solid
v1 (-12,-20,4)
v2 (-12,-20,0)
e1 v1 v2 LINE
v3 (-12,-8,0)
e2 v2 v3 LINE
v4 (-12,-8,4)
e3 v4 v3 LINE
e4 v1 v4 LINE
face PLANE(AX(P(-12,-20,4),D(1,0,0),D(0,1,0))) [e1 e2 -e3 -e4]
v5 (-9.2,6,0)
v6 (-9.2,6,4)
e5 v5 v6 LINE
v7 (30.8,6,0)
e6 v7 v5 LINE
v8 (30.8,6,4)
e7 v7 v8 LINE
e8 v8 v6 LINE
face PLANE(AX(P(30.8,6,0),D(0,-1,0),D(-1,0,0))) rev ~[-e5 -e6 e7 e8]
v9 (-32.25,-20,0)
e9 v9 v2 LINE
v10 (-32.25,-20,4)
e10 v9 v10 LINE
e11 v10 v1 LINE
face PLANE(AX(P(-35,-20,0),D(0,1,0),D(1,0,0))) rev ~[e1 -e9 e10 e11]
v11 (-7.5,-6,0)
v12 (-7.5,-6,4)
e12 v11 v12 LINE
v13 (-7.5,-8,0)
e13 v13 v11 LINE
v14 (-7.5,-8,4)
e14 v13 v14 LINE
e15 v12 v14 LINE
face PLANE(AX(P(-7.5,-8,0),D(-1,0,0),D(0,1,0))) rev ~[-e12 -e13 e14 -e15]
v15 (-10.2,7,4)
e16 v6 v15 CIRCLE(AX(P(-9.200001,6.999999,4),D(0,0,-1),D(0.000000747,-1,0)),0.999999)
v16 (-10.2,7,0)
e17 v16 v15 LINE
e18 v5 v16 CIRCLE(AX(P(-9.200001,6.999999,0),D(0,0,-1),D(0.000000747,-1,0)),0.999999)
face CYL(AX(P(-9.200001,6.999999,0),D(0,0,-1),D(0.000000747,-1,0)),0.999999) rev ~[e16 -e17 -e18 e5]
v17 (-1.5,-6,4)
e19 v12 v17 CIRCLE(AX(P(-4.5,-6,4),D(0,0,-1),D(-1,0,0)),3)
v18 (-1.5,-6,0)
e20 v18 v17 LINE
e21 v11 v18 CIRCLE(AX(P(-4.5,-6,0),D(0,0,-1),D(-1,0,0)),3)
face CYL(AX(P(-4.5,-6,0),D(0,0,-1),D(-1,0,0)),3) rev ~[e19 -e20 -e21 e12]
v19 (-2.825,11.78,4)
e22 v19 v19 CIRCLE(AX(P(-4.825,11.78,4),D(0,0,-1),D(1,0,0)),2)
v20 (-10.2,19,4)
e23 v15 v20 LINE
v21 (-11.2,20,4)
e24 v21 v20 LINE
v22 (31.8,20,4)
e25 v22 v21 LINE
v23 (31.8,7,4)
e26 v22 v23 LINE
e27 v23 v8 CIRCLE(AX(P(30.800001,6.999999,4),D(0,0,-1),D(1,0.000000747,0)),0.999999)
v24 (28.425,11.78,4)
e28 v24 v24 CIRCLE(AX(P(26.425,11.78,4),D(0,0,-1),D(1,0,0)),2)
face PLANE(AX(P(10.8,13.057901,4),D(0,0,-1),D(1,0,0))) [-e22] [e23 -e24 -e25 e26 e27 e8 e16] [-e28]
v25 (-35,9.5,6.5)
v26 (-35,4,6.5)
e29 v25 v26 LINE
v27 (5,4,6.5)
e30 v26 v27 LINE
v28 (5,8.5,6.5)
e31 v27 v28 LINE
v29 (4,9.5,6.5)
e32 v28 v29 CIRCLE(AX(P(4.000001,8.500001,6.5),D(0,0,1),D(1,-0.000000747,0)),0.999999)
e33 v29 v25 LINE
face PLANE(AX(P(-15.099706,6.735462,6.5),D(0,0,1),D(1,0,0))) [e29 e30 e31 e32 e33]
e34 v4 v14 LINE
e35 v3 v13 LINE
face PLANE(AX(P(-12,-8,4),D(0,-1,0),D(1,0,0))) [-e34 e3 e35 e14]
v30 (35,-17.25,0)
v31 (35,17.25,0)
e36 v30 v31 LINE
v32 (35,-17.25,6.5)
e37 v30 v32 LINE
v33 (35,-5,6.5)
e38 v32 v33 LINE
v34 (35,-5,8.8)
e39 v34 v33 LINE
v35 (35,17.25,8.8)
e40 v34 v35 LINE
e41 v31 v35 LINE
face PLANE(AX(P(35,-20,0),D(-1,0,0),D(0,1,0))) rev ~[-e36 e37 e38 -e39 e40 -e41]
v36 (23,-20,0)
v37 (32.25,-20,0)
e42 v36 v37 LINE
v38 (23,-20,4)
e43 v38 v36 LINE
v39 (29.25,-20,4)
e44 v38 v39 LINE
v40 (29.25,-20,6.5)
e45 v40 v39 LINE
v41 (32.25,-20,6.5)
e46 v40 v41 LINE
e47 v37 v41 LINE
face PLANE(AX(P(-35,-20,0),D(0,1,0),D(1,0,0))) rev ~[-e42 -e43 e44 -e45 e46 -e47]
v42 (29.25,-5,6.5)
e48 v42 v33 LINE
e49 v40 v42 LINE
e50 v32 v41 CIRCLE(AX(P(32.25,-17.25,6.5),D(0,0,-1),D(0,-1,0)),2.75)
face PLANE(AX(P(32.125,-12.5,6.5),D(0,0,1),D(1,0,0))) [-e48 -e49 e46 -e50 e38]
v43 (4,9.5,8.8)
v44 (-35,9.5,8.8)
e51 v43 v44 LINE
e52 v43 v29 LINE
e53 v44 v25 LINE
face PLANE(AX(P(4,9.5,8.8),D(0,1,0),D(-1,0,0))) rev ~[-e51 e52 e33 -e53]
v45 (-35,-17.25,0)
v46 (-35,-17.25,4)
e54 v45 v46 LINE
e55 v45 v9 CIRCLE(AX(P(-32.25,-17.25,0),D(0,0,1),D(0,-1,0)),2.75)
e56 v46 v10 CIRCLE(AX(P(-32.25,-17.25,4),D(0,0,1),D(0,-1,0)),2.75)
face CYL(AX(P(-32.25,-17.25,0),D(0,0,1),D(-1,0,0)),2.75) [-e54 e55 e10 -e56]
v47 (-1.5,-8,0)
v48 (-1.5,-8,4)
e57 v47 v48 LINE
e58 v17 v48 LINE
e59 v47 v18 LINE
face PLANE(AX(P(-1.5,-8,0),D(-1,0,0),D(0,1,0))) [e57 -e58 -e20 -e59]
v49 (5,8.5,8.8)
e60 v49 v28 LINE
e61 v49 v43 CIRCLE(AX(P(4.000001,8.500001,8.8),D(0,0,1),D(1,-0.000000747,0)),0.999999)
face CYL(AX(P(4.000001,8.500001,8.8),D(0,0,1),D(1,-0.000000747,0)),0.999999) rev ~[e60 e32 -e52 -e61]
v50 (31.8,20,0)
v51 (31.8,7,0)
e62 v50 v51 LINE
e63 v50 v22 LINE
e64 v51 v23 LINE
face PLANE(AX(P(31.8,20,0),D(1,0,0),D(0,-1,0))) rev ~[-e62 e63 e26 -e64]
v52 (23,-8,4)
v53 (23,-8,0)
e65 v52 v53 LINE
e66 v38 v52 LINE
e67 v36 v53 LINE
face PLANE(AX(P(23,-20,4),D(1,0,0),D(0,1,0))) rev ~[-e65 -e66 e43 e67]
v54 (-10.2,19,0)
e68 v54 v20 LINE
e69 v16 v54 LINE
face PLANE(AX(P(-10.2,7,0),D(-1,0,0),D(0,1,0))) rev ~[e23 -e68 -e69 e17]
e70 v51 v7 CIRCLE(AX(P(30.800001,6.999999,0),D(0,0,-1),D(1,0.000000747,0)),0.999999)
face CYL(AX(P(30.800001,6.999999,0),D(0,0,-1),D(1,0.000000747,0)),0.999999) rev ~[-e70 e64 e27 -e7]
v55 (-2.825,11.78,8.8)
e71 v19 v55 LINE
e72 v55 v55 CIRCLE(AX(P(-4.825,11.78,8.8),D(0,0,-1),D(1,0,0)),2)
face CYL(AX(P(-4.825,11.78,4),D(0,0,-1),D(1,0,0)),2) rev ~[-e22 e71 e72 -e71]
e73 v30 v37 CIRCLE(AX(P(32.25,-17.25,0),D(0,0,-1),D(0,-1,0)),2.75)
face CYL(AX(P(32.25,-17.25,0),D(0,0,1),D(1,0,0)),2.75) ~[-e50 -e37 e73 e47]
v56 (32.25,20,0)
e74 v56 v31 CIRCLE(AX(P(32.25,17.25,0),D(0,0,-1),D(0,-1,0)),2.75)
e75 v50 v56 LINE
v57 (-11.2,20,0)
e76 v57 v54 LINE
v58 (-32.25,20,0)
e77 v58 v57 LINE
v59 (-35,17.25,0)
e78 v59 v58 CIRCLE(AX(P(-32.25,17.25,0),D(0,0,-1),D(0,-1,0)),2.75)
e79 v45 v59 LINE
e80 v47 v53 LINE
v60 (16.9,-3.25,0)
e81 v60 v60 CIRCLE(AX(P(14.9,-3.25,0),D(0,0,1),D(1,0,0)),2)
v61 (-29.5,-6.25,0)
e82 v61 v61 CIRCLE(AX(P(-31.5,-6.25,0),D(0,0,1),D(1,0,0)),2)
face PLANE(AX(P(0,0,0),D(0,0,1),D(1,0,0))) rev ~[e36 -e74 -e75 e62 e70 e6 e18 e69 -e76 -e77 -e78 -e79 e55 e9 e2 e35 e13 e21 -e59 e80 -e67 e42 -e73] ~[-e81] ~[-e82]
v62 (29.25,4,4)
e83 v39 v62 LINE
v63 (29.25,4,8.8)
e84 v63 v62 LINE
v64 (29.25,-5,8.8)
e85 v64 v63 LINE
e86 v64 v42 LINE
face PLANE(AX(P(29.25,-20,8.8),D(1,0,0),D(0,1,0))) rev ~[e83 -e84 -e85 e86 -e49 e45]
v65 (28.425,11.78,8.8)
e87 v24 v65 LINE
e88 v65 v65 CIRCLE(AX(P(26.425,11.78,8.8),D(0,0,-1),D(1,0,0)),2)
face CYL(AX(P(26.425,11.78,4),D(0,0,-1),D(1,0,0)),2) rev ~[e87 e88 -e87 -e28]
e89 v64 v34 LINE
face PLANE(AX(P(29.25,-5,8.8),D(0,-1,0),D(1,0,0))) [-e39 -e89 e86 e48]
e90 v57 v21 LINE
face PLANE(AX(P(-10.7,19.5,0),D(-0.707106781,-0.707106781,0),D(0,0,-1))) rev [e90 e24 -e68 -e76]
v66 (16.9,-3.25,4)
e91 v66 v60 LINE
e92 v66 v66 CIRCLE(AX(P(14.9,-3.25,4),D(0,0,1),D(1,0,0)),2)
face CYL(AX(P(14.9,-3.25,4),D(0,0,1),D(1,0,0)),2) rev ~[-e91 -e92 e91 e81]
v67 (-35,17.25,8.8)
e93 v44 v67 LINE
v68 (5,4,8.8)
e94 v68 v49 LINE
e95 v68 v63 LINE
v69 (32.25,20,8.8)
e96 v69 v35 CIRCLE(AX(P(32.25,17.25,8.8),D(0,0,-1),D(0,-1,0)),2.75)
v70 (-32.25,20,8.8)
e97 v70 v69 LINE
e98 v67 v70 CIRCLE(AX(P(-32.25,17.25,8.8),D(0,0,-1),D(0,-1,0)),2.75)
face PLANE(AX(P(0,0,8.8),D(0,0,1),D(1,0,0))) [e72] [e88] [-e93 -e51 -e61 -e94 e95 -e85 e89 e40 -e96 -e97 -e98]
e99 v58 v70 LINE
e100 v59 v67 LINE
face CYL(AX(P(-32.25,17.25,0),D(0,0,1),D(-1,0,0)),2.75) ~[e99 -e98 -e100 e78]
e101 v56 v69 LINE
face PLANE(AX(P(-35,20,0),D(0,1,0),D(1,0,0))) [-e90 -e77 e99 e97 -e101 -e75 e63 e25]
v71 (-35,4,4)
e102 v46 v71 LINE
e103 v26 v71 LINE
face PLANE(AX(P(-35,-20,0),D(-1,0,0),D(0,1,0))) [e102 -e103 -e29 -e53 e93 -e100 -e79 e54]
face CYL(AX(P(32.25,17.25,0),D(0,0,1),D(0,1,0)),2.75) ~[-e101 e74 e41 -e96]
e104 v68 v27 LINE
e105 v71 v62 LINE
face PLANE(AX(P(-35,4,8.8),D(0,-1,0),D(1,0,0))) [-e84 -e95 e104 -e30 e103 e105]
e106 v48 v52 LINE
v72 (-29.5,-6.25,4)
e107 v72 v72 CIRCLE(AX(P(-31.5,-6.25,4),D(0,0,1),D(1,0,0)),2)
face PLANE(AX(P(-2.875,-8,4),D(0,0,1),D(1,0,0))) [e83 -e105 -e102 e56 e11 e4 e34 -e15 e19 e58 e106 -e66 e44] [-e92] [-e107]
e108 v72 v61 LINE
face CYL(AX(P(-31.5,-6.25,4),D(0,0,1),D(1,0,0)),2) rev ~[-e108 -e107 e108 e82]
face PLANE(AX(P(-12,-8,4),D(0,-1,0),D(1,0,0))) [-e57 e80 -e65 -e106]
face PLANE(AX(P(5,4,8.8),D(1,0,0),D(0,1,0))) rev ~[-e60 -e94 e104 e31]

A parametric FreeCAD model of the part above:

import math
import FreeCAD as App
import Part
import Sketcher

V = App.Vector


def edges_at(feature, points):
    """Names of the edges that pass closest to the given points."""
    edges = feature.Shape.Edges
    near = lambda p: min(range(len(edges)), key=lambda i: edges[i].distToShape(Part.Vertex(*p))[0])
    return sorted({f"Edge{near(p) + 1}" for p in points})

doc = App.newDocument("Part")
body = doc.addObject("PartDesign::Body", "Body")

sketch1 = doc.addObject("Sketcher::SketchObject", "Sketch")
body.addObject(sketch1)
sketch1.AttachmentSupport = (doc.XZ_Plane, [""])
sketch1.MapMode = "FlatFace"
sketch1.addGeometry(Part.LineSegment(V(-35, 20, 0), V(-35, -20, 0)), False)
sketch1.addGeometry(Part.LineSegment(V(-35, -20, 0), V(35, -20, 0)), False)
sketch1.addGeometry(Part.LineSegment(V(35, -20, 0), V(35, 20, 0)), False)
sketch1.addGeometry(Part.LineSegment(V(35, 20, 0), V(-35, 20, 0)), False)
sketch1.addConstraint(Sketcher.Constraint("Coincident", 0, 2, 1, 1))
sketch1.addConstraint(Sketcher.Constraint("Coincident", 1, 2, 2, 1))
sketch1.addConstraint(Sketcher.Constraint("Coincident", 2, 2, 3, 1))
sketch1.addConstraint(Sketcher.Constraint("Coincident", 3, 2, 0, 1))
sketch1.addConstraint(Sketcher.Constraint("Vertical", 0))
sketch1.addConstraint(Sketcher.Constraint("Horizontal", 1))
sketch1.addConstraint(Sketcher.Constraint("Vertical", 2))
sketch1.addConstraint(Sketcher.Constraint("Horizontal", 3))
sketch1.addConstraint(Sketcher.Constraint("Symmetric", 0, 2, 2, 2, -1, 1))
sketch1.addConstraint(Sketcher.Constraint("DistanceX", 1, 1, 1, 2, 70.0))
sketch1.addConstraint(Sketcher.Constraint("DistanceY", 0, 2, 0, 1, 40.0))
pad1 = doc.addObject("PartDesign::Pad", "Pad")
body.addObject(pad1)
pad1.Profile = sketch1
pad1.Length = 8.8

sketch2 = doc.addObject("Sketcher::SketchObject", "Sketch001")
body.addObject(sketch2)
sketch2.AttachmentSupport = (doc.XZ_Plane, [""])
sketch2.MapMode = "FlatFace"
sketch2.addGeometry(Part.LineSegment(V(31.8, 20, 0), V(31.8, 7, 0)), False)
sketch2.addGeometry(Part.ArcOfCircle(Part.Circle(V(30.800001, 6.999999, 0), V(0, 0, 1), 0.999999), math.radians(-90.000043), math.radians(0.000043)), False)
sketch2.addGeometry(Part.LineSegment(V(30.8, 6, 0), V(-9.2, 6, 0)), False)
sketch2.addGeometry(Part.ArcOfCircle(Part.Circle(V(-9.200001, 6.999999, 0), V(0, 0, 1), 0.999999), math.radians(179.999957), math.radians(270.000043)), False)
sketch2.addGeometry(Part.LineSegment(V(-10.2, 7, 0), V(-10.2, 20, 0)), False)
sketch2.addGeometry(Part.LineSegment(V(-10.2, 20, 0), V(31.8, 20, 0)), False)
sketch2.addConstraint(Sketcher.Constraint("Tangent", 0, 2, 1, 2))
sketch2.addConstraint(Sketcher.Constraint("Tangent", 1, 1, 2, 1))
sketch2.addConstraint(Sketcher.Constraint("Tangent", 2, 2, 3, 2))
sketch2.addConstraint(Sketcher.Constraint("Tangent", 3, 1, 4, 1))
sketch2.addConstraint(Sketcher.Constraint("Coincident", 4, 2, 5, 1))
sketch2.addConstraint(Sketcher.Constraint("Coincident", 5, 2, 0, 1))
sketch2.addConstraint(Sketcher.Constraint("Vertical", 0))
sketch2.addConstraint(Sketcher.Constraint("Horizontal", 2))
sketch2.addConstraint(Sketcher.Constraint("Vertical", 4))
sketch2.addConstraint(Sketcher.Constraint("Horizontal", 5))
sketch2.addConstraint(Sketcher.Constraint("Equal", 1, 3))
sketch2.addConstraint(Sketcher.Constraint("Radius", 1, 0.999999))
sketch2.addConstraint(Sketcher.Constraint("DistanceX", 2, 2, 2, 1, 40.0))
sketch2.addConstraint(Sketcher.Constraint("DistanceY", 0, 2, 0, 1, 13.0))
sketch2.addConstraint(Sketcher.Constraint("DistanceY", -1, 1, 1, 3, 6.999999))
sketch2.addConstraint(Sketcher.Constraint("DistanceX", -1, 1, 1, 3, 30.800001))
pocket1 = doc.addObject("PartDesign::Pocket", "Pocket")
body.addObject(pocket1)
pocket1.Profile = sketch2
pocket1.Length = 4
pocket1.Reversed = True

sketch3 = doc.addObject("Sketcher::SketchObject", "Sketch002")
body.addObject(sketch3)
sketch3.AttachmentSupport = (doc.XZ_Plane, [""])
sketch3.MapMode = "FlatFace"
sketch3.AttachmentOffset = App.Placement(V(0, 0, 4), App.Rotation())
sketch3.addGeometry(Part.Circle(V(-4.825, 11.78, 0), V(0, 0, 1), 2), False)
sketch3.addGeometry(Part.Circle(V(26.425, 11.78, 0), V(0, 0, 1), 2), False)
sketch3.addConstraint(Sketcher.Constraint("Equal", 0, 1))
sketch3.addConstraint(Sketcher.Constraint("Horizontal", 0, 3, 1, 3))
sketch3.addConstraint(Sketcher.Constraint("Diameter", 0, 4.0))
sketch3.addConstraint(Sketcher.Constraint("DistanceY", -1, 1, 0, 3, 11.78))
sketch3.addConstraint(Sketcher.Constraint("DistanceX", 0, 3, 1, 3, 31.25))
sketch3.addConstraint(Sketcher.Constraint("DistanceX", 0, 3, -1, 1, 4.825))
pocket2 = doc.addObject("PartDesign::Pocket", "Pocket001")
body.addObject(pocket2)
pocket2.Profile = sketch3
pocket2.Type = "ThroughAll"
pocket2.Reversed = True

sketch4 = doc.addObject("Sketcher::SketchObject", "Sketch003")
body.addObject(sketch4)
sketch4.AttachmentSupport = (doc.XZ_Plane, [""])
sketch4.MapMode = "FlatFace"
sketch4.AttachmentOffset = App.Placement(V(0, 0, 8.8), App.Rotation())
sketch4.addGeometry(Part.LineSegment(V(-35, 4, 0), V(-35, -20, 0)), False)
sketch4.addGeometry(Part.LineSegment(V(-35, -20, 0), V(29.25, -20, 0)), False)
sketch4.addGeometry(Part.LineSegment(V(29.25, -20, 0), V(29.25, 4, 0)), False)
sketch4.addGeometry(Part.LineSegment(V(29.25, 4, 0), V(-35, 4, 0)), False)
sketch4.addConstraint(Sketcher.Constraint("Coincident", 0, 2, 1, 1))
sketch4.addConstraint(Sketcher.Constraint("Coincident", 1, 2, 2, 1))
sketch4.addConstraint(Sketcher.Constraint("Coincident", 2, 2, 3, 1))
sketch4.addConstraint(Sketcher.Constraint("Coincident", 3, 2, 0, 1))
sketch4.addConstraint(Sketcher.Constraint("Vertical", 0))
sketch4.addConstraint(Sketcher.Constraint("Horizontal", 1))
sketch4.addConstraint(Sketcher.Constraint("Vertical", 2))
sketch4.addConstraint(Sketcher.Constraint("Horizontal", 3))
sketch4.addConstraint(Sketcher.Constraint("DistanceY", 0, 2, 0, 1, 24.0))
sketch4.addConstraint(Sketcher.Constraint("DistanceX", 0, 2, -1, 1, 35.0))
sketch4.addConstraint(Sketcher.Constraint("DistanceY", 0, 2, -1, 1, 20.0))
sketch4.addConstraint(Sketcher.Constraint("DistanceX", 1, 1, 1, 2, 64.25))
pocket3 = doc.addObject("PartDesign::Pocket", "Pocket002")
body.addObject(pocket3)
pocket3.Profile = sketch4
pocket3.Length = 4.8

sketch5 = doc.addObject("Sketcher::SketchObject", "Sketch004")
body.addObject(sketch5)
sketch5.AttachmentSupport = (doc.XZ_Plane, [""])
sketch5.MapMode = "FlatFace"
sketch5.AttachmentOffset = App.Placement(V(0, 0, 4), App.Rotation())
sketch5.addGeometry(Part.Circle(V(14.9, -3.25, 0), V(0, 0, 1), 2), False)
sketch5.addGeometry(Part.Circle(V(-31.5, -6.25, 0), V(0, 0, 1), 2), False)
sketch5.addConstraint(Sketcher.Constraint("Equal", 0, 1))
sketch5.addConstraint(Sketcher.Constraint("Diameter", 0, 4.0))
sketch5.addConstraint(Sketcher.Constraint("DistanceY", 1, 3, 0, 3, 3.0))
sketch5.addConstraint(Sketcher.Constraint("DistanceX", -1, 1, 0, 3, 14.9))
sketch5.addConstraint(Sketcher.Constraint("DistanceX", 1, 3, -1, 1, 31.5))
sketch5.addConstraint(Sketcher.Constraint("DistanceY", 0, 3, -1, 1, 3.25))
pocket4 = doc.addObject("PartDesign::Pocket", "Pocket003")
body.addObject(pocket4)
pocket4.Profile = sketch5
pocket4.Length = 4

sketch6 = doc.addObject("Sketcher::SketchObject", "Sketch005")
body.addObject(sketch6)
sketch6.AttachmentSupport = (doc.XZ_Plane, [""])
sketch6.MapMode = "FlatFace"
sketch6.AttachmentOffset = App.Placement(V(0, 0, 4), App.Rotation())
sketch6.addGeometry(Part.LineSegment(V(-12, -8, 0), V(-12, -20, 0)), False)
sketch6.addGeometry(Part.LineSegment(V(-12, -20, 0), V(23, -20, 0)), False)
sketch6.addGeometry(Part.LineSegment(V(23, -20, 0), V(23, -8, 0)), False)
sketch6.addGeometry(Part.LineSegment(V(23, -8, 0), V(-12, -8, 0)), False)
sketch6.addConstraint(Sketcher.Constraint("Coincident", 0, 2, 1, 1))
sketch6.addConstraint(Sketcher.Constraint("Coincident", 1, 2, 2, 1))
sketch6.addConstraint(Sketcher.Constraint("Coincident", 2, 2, 3, 1))
sketch6.addConstraint(Sketcher.Constraint("Coincident", 3, 2, 0, 1))
sketch6.addConstraint(Sketcher.Constraint("Vertical", 0))
sketch6.addConstraint(Sketcher.Constraint("Horizontal", 1))
sketch6.addConstraint(Sketcher.Constraint("Vertical", 2))
sketch6.addConstraint(Sketcher.Constraint("Horizontal", 3))
sketch6.addConstraint(Sketcher.Constraint("DistanceX", 1, 1, 1, 2, 35.0))
sketch6.addConstraint(Sketcher.Constraint("DistanceY", 0, 2, 0, 1, 12.0))
sketch6.addConstraint(Sketcher.Constraint("DistanceX", 0, 2, -1, 1, 12.0))
sketch6.addConstraint(Sketcher.Constraint("DistanceY", 0, 2, -1, 1, 20.0))
pocket5 = doc.addObject("PartDesign::Pocket", "Pocket004")
body.addObject(pocket5)
pocket5.Profile = sketch6
pocket5.Length = 4

sketch7 = doc.addObject("Sketcher::SketchObject", "Sketch006")
body.addObject(sketch7)
sketch7.AttachmentSupport = (doc.XZ_Plane, [""])
sketch7.MapMode = "FlatFace"
sketch7.addGeometry(Part.ArcOfCircle(Part.Circle(V(-4.5, -6, 0), V(0, 0, 1), 3), math.radians(0), math.radians(180)), False)
sketch7.addGeometry(Part.LineSegment(V(-1.5, -6, 0), V(-1.5, -8, 0)), False)
sketch7.addGeometry(Part.LineSegment(V(-1.5, -8, 0), V(-7.5, -8, 0)), False)
sketch7.addGeometry(Part.LineSegment(V(-7.5, -8, 0), V(-7.5, -6, 0)), False)
sketch7.addConstraint(Sketcher.Constraint("Tangent", 0, 1, 1, 1))
sketch7.addConstraint(Sketcher.Constraint("Coincident", 1, 2, 2, 1))
sketch7.addConstraint(Sketcher.Constraint("Coincident", 2, 2, 3, 1))
sketch7.addConstraint(Sketcher.Constraint("Tangent", 3, 2, 0, 2))
sketch7.addConstraint(Sketcher.Constraint("Vertical", 1))
sketch7.addConstraint(Sketcher.Constraint("Horizontal", 2))
sketch7.addConstraint(Sketcher.Constraint("Vertical", 3))
sketch7.addConstraint(Sketcher.Constraint("Radius", 0, 3.0))
sketch7.addConstraint(Sketcher.Constraint("DistanceY", 1, 2, 1, 1, 2.0))
sketch7.addConstraint(Sketcher.Constraint("DistanceY", 0, 3, -1, 1, 6.0))
sketch7.addConstraint(Sketcher.Constraint("DistanceX", 0, 3, -1, 1, 4.5))
pocket6 = doc.addObject("PartDesign::Pocket", "Pocket005")
body.addObject(pocket6)
pocket6.Profile = sketch7
pocket6.Type = "ThroughAll"
pocket6.Reversed = True

sketch8 = doc.addObject("Sketcher::SketchObject", "Sketch007")
body.addObject(sketch8)
sketch8.AttachmentSupport = (doc.XZ_Plane, [""])
sketch8.MapMode = "FlatFace"
sketch8.AttachmentOffset = App.Placement(V(0, 0, 8.8), App.Rotation())
sketch8.addGeometry(Part.LineSegment(V(-35, 4, 0), V(5, 4, 0)), False)
sketch8.addGeometry(Part.LineSegment(V(5, 4, 0), V(5, 8.5, 0)), False)
sketch8.addGeometry(Part.ArcOfCircle(Part.Circle(V(4.000001, 8.500001, 0), V(0, 0, 1), 0.999999), math.radians(-0.000043), math.radians(90.000043)), False)
sketch8.addGeometry(Part.LineSegment(V(4, 9.5, 0), V(-35, 9.5, 0)), False)
sketch8.addGeometry(Part.LineSegment(V(-35, 9.5, 0), V(-35, 4, 0)), False)
sketch8.addGeometry(Part.LineSegment(V(29.25, -5, 0), V(29.25, -20, 0)), False)
sketch8.addGeometry(Part.LineSegment(V(29.25, -20, 0), V(35, -20, 0)), False)
sketch8.addGeometry(Part.LineSegment(V(35, -20, 0), V(35, -5, 0)), False)
sketch8.addGeometry(Part.LineSegment(V(35, -5, 0), V(29.25, -5, 0)), False)
sketch8.addConstraint(Sketcher.Constraint("Coincident", 0, 2, 1, 1))
sketch8.addConstraint(Sketcher.Constraint("Tangent", 1, 2, 2, 1))
sketch8.addConstraint(Sketcher.Constraint("Tangent", 2, 2, 3, 1))
sketch8.addConstraint(Sketcher.Constraint("Coincident", 3, 2, 4, 1))
sketch8.addConstraint(Sketcher.Constraint("Coincident", 4, 2, 0, 1))
sketch8.addConstraint(Sketcher.Constraint("Coincident", 5, 2, 6, 1))
sketch8.addConstraint(Sketcher.Constraint("Coincident", 6, 2, 7, 1))
sketch8.addConstraint(Sketcher.Constraint("Coincident", 7, 2, 8, 1))
sketch8.addConstraint(Sketcher.Constraint("Coincident", 8, 2, 5, 1))
sketch8.addConstraint(Sketcher.Constraint("Horizontal", 0))
sketch8.addConstraint(Sketcher.Constraint("Vertical", 1))
sketch8.addConstraint(Sketcher.Constraint("Horizontal", 3))
sketch8.addConstraint(Sketcher.Constraint("Vertical", 4))
sketch8.addConstraint(Sketcher.Constraint("Vertical", 5))
sketch8.addConstraint(Sketcher.Constraint("Horizontal", 6))
sketch8.addConstraint(Sketcher.Constraint("Vertical", 7))
sketch8.addConstraint(Sketcher.Constraint("Horizontal", 8))
sketch8.addConstraint(Sketcher.Constraint("Radius", 2, 0.999999))
sketch8.addConstraint(Sketcher.Constraint("DistanceX", 0, 1, 0, 2, 40.0))
sketch8.addConstraint(Sketcher.Constraint("DistanceY", 5, 2, 5, 1, 15.0))
sketch8.addConstraint(Sketcher.Constraint("DistanceY", 1, 1, 1, 2, 4.5))
sketch8.addConstraint(Sketcher.Constraint("DistanceX", -1, 1, 2, 3, 4.000001))
sketch8.addConstraint(Sketcher.Constraint("DistanceY", -1, 1, 0, 2, 4.0))
sketch8.addConstraint(Sketcher.Constraint("DistanceY", 5, 2, -1, 1, 20.0))
sketch8.addConstraint(Sketcher.Constraint("DistanceX", -1, 1, 6, 2, 35.0))
sketch8.addConstraint(Sketcher.Constraint("DistanceX", 6, 1, 6, 2, 5.75))
pocket7 = doc.addObject("PartDesign::Pocket", "Pocket006")
body.addObject(pocket7)
pocket7.Profile = sketch8
pocket7.Length = 2.3
doc.recompute()

fillet = doc.addObject("PartDesign::Fillet", "Fillet")
body.addObject(fillet)
fillet.Base = (pocket7, edges_at(pocket7, [
    (35, -4.4, 20),
    (-35, -4.4, 20),
    (35, -3.25, -20),
    (-35, -2, -20),
]))
fillet.Radius = 2.75
doc.recompute()

chamfer = doc.addObject("PartDesign::Chamfer", "Chamfer")
body.addObject(chamfer)
chamfer.Base = (fillet, edges_at(fillet, [(-10.2, -2, 20)]))
chamfer.Size = 1
body2 = doc.addObject("PartDesign::Body", "Body001")
doc.recompute()

body.Placement = App.Placement(V(0, 0, 0), App.Rotation(V(-1, 0, 0), 90))
boolean = doc.addObject("PartDesign::Boolean", "Boolean")
body2.addObject(boolean)
boolean.Type = "Fuse"
boolean.addObjects([body])

doc.recompute()
